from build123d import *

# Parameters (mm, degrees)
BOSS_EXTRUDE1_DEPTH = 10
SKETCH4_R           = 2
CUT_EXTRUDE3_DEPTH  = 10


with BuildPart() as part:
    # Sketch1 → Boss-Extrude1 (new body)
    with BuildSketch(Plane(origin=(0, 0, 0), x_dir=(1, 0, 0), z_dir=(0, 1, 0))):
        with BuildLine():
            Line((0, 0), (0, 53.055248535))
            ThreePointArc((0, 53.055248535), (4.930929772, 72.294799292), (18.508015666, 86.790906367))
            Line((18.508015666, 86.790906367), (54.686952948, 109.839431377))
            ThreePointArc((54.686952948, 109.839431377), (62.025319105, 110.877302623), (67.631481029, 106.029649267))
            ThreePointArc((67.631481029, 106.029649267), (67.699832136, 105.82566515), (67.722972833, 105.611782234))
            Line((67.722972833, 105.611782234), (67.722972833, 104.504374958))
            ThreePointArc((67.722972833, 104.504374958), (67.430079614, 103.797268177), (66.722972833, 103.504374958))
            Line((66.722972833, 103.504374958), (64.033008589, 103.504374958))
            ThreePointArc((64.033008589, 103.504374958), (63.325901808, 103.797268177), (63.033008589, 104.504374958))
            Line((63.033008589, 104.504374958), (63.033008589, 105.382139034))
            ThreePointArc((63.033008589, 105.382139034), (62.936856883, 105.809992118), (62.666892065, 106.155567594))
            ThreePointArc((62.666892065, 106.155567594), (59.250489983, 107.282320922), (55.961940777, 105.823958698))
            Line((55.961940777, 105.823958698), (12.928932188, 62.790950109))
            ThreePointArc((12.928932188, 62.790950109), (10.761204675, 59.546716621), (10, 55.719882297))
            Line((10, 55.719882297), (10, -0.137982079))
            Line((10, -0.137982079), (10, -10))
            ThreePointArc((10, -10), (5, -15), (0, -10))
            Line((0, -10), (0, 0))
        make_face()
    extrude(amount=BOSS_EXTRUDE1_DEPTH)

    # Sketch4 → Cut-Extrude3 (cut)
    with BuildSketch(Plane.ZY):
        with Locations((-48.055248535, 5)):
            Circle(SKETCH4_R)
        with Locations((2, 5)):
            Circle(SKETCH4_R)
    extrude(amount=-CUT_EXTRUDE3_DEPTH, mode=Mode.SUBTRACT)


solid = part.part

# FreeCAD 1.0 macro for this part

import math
import FreeCAD as App
import Part
import Sketcher

V = App.Vector
Q = App.Units.Quantity

doc = App.newDocument("Part")
params = doc.addObject("Spreadsheet::Sheet", "Params")
for row, (alias, value) in enumerate([
    ("sketch1_radius", "40 mm"),
    ("sketch1_radius2", "5 mm"),
    ("sketch1_radius3", "10 mm"),
    ("sketch1_radius4", "1 mm"),
    ("pad1_length", "10 mm"),
    ("sketch2_diameter", "4 mm"),
    ("pocket1_length", "10 mm"),
], start=1):
    params.set(f"A{row}", alias)
    params.set(f"B{row}", "=" + value)
    params.setAlias(f"B{row}", alias)

body = doc.addObject("PartDesign::Body", "Body")

# Sketch on XZ plane
sketch1 = body.newObject("Sketcher::SketchObject", "Sketch")
sketch1.AttachmentSupport = (doc.getObject("XZ_Plane"), [""])
sketch1.MapMode = "FlatFace"
sketch1.addGeometry(Part.ArcOfCircle(Part.Circle(V(40, -53.06, 0), V(0, 0, 1), 40), math.radians(180), math.radians(237)), False)
sketch1.addGeometry(Part.LineSegment(V(0, -53.06, 0), V(0, 10, 0)), False)
sketch1.addGeometry(Part.ArcOfCircle(Part.Circle(V(5, 10, 0), V(0, 0, 1), 5), math.radians(0), math.radians(180)), False)
sketch1.addGeometry(Part.LineSegment(V(10, 10, 0), V(10, -55.72, 0)), False)
sketch1.addGeometry(Part.ArcOfCircle(Part.Circle(V(20, -55.72, 0), V(0, 0, 1), 10), math.radians(180), math.radians(225)), False)
sketch1.addGeometry(Part.LineSegment(V(12.93, -62.79, 0), V(55.96, -105.82, 0)), False)
sketch1.addGeometry(Part.ArcOfCircle(Part.Circle(V(59.5, -102.29, 0), V(0, 0, 1), 5), math.radians(-135), math.radians(-51)), False)
sketch1.addGeometry(Part.ArcOfCircle(Part.Circle(V(62.03, -105.38, 0), V(0, 0, 1), 1), math.radians(-51), math.radians(0)), False)
sketch1.addGeometry(Part.LineSegment(V(63.03, -105.38, 0), V(63.03, -104.5, 0)), False)
sketch1.addGeometry(Part.ArcOfCircle(Part.Circle(V(64.03, -104.5, 0), V(0, 0, 1), 1), math.radians(90), math.radians(180)), False)
sketch1.addGeometry(Part.LineSegment(V(64.03, -103.5, 0), V(66.72, -103.5, 0)), False)
sketch1.addGeometry(Part.ArcOfCircle(Part.Circle(V(66.72, -104.5, 0), V(0, 0, 1), 1), math.radians(0), math.radians(90)), False)
sketch1.addGeometry(Part.LineSegment(V(67.72, -104.5, 0), V(67.72, -105.61, 0)), False)
sketch1.addGeometry(Part.ArcOfCircle(Part.Circle(V(66.72, -105.61, 0), V(0, 0, 1), 1), math.radians(-25), math.radians(0)), False)
sketch1.addGeometry(Part.ArcOfCircle(Part.Circle(V(59.5, -102.29, 0), V(0, 0, 1), 8.95), math.radians(-123), math.radians(-25)), False)
sketch1.addGeometry(Part.LineSegment(V(54.69, -109.84, 0), V(18.51, -86.79, 0)), False)
sketch1.addConstraint(Sketcher.Constraint("Tangent", 0, 1, 1, 1))
sketch1.addConstraint(Sketcher.Constraint("Tangent", 1, 2, 2, 2))
sketch1.addConstraint(Sketcher.Constraint("Tangent", 2, 1, 3, 1))
sketch1.addConstraint(Sketcher.Constraint("Tangent", 3, 2, 4, 1))
sketch1.addConstraint(Sketcher.Constraint("Tangent", 4, 2, 5, 1))
sketch1.addConstraint(Sketcher.Constraint("Tangent", 5, 2, 6, 1))
sketch1.addConstraint(Sketcher.Constraint("Tangent", 6, 2, 7, 1))
sketch1.addConstraint(Sketcher.Constraint("Tangent", 7, 2, 8, 1))
sketch1.addConstraint(Sketcher.Constraint("Tangent", 8, 2, 9, 2))
sketch1.addConstraint(Sketcher.Constraint("Tangent", 9, 1, 10, 1))
sketch1.addConstraint(Sketcher.Constraint("Tangent", 10, 2, 11, 2))
sketch1.addConstraint(Sketcher.Constraint("Tangent", 11, 1, 12, 1))
sketch1.addConstraint(Sketcher.Constraint("Tangent", 12, 2, 13, 2))
sketch1.addConstraint(Sketcher.Constraint("Tangent", 13, 1, 14, 2))
sketch1.addConstraint(Sketcher.Constraint("Tangent", 14, 1, 15, 1))
sketch1.addConstraint(Sketcher.Constraint("Tangent", 15, 2, 0, 2))
sketch1.addConstraint(Sketcher.Constraint("Vertical", 1))
sketch1.addConstraint(Sketcher.Constraint("Vertical", 3))
sketch1.addConstraint(Sketcher.Constraint("Vertical", 8))
sketch1.addConstraint(Sketcher.Constraint("Horizontal", 10))
sketch1.addConstraint(Sketcher.Constraint("Vertical", 12))
sketch1.addConstraint(Sketcher.Constraint("Coincident", 14, 3, 6, 3))
sketch1.addConstraint(Sketcher.Constraint("Equal", 2, 6))
sketch1.addConstraint(Sketcher.Constraint("Equal", 7, 9))
sketch1.addConstraint(Sketcher.Constraint("Equal", 9, 11))
sketch1.addConstraint(Sketcher.Constraint("Equal", 11, 13))
sketch1.addConstraint(Sketcher.Constraint("PointOnObject", 0, 1, -2))
sketch1.addConstraint(Sketcher.Constraint("Radius", 0, Q("40 mm")))
sketch1.addConstraint(Sketcher.Constraint("Radius", 2, Q("5 mm")))
sketch1.addConstraint(Sketcher.Constraint("Radius", 4, Q("10 mm")))
sketch1.addConstraint(Sketcher.Constraint("Radius", 7, Q("1 mm")))
sketch1.addConstraint(Sketcher.Constraint("Angle", 5, Q("-45 deg")))
sketch1.addConstraint(Sketcher.Constraint("DistanceY", -1, 1, 2, 3, Q("10 mm")))
sketch1.addConstraint(Sketcher.Constraint("Angle", 15, Q("147.5 deg")))
sketch1.addConstraint(Sketcher.Constraint("Radius", 14, Q("8.953146 mm")))
sketch1.addConstraint(Sketcher.Constraint("DistanceY", 1, 1, 1, 2, Q("63.055249 mm")))
sketch1.addConstraint(Sketcher.Constraint("DistanceX", 6, 3, 11, 3, Q("7.225498 mm")))
sketch1.addConstraint(Sketcher.Constraint("DistanceY", 4, 2, 0, 1, Q("9.735702 mm")))
sketch1.addConstraint(Sketcher.Constraint("DistanceX", 10, 1, 10, 2, Q("2.689964 mm")))
sketch1.addConstraint(Sketcher.Constraint("DistanceY", 8, 1, 8, 2, Q("0.877764 mm")))
sketch1.setExpression("Constraints[27]", "Params.sketch1_radius")
sketch1.setExpression("Constraints[28]", "Params.sketch1_radius2")
sketch1.setExpression("Constraints[29]", "Params.sketch1_radius3")
sketch1.setExpression("Constraints[30]", "Params.sketch1_radius4")
pad1 = body.newObject("PartDesign::Pad", "Pad")
pad1.Profile = sketch1
pad1.setExpression("Length", "Params.pad1_length")
pad1.Reversed = True

# Sketch on YZ plane
sketch2 = body.newObject("Sketcher::SketchObject", "Sketch001")
sketch2.AttachmentSupport = (doc.getObject("YZ_Plane"), [""])
sketch2.MapMode = "FlatFace"
sketch2.addGeometry(Part.Circle(V(5, -48.1, 0), V(0, 0, 1), 2), False)
sketch2.addGeometry(Part.Circle(V(5, 2, 0), V(0, 0, 1), 2), False)
sketch2.addConstraint(Sketcher.Constraint("Equal", 0, 1))
sketch2.addConstraint(Sketcher.Constraint("Vertical", 0, 3, 1, 3))
sketch2.addConstraint(Sketcher.Constraint("Diameter", 0, Q("4 mm")))
sketch2.addConstraint(Sketcher.Constraint("DistanceX", -1, 1, 0, 3, Q("5 mm")))
sketch2.addConstraint(Sketcher.Constraint("DistanceY", -1, 1, 1, 3, Q("2 mm")))
sketch2.addConstraint(Sketcher.Constraint("DistanceY", 0, 3, -1, 1, Q("48.055249 mm")))
sketch2.setExpression("Constraints[2]", "Params.sketch2_diameter")
pocket1 = body.newObject("PartDesign::Pocket", "Pocket")
pocket1.Profile = sketch2
pocket1.setExpression("Length", "Params.pocket1_length")
pocket1.Reversed = True

doc.recompute()
